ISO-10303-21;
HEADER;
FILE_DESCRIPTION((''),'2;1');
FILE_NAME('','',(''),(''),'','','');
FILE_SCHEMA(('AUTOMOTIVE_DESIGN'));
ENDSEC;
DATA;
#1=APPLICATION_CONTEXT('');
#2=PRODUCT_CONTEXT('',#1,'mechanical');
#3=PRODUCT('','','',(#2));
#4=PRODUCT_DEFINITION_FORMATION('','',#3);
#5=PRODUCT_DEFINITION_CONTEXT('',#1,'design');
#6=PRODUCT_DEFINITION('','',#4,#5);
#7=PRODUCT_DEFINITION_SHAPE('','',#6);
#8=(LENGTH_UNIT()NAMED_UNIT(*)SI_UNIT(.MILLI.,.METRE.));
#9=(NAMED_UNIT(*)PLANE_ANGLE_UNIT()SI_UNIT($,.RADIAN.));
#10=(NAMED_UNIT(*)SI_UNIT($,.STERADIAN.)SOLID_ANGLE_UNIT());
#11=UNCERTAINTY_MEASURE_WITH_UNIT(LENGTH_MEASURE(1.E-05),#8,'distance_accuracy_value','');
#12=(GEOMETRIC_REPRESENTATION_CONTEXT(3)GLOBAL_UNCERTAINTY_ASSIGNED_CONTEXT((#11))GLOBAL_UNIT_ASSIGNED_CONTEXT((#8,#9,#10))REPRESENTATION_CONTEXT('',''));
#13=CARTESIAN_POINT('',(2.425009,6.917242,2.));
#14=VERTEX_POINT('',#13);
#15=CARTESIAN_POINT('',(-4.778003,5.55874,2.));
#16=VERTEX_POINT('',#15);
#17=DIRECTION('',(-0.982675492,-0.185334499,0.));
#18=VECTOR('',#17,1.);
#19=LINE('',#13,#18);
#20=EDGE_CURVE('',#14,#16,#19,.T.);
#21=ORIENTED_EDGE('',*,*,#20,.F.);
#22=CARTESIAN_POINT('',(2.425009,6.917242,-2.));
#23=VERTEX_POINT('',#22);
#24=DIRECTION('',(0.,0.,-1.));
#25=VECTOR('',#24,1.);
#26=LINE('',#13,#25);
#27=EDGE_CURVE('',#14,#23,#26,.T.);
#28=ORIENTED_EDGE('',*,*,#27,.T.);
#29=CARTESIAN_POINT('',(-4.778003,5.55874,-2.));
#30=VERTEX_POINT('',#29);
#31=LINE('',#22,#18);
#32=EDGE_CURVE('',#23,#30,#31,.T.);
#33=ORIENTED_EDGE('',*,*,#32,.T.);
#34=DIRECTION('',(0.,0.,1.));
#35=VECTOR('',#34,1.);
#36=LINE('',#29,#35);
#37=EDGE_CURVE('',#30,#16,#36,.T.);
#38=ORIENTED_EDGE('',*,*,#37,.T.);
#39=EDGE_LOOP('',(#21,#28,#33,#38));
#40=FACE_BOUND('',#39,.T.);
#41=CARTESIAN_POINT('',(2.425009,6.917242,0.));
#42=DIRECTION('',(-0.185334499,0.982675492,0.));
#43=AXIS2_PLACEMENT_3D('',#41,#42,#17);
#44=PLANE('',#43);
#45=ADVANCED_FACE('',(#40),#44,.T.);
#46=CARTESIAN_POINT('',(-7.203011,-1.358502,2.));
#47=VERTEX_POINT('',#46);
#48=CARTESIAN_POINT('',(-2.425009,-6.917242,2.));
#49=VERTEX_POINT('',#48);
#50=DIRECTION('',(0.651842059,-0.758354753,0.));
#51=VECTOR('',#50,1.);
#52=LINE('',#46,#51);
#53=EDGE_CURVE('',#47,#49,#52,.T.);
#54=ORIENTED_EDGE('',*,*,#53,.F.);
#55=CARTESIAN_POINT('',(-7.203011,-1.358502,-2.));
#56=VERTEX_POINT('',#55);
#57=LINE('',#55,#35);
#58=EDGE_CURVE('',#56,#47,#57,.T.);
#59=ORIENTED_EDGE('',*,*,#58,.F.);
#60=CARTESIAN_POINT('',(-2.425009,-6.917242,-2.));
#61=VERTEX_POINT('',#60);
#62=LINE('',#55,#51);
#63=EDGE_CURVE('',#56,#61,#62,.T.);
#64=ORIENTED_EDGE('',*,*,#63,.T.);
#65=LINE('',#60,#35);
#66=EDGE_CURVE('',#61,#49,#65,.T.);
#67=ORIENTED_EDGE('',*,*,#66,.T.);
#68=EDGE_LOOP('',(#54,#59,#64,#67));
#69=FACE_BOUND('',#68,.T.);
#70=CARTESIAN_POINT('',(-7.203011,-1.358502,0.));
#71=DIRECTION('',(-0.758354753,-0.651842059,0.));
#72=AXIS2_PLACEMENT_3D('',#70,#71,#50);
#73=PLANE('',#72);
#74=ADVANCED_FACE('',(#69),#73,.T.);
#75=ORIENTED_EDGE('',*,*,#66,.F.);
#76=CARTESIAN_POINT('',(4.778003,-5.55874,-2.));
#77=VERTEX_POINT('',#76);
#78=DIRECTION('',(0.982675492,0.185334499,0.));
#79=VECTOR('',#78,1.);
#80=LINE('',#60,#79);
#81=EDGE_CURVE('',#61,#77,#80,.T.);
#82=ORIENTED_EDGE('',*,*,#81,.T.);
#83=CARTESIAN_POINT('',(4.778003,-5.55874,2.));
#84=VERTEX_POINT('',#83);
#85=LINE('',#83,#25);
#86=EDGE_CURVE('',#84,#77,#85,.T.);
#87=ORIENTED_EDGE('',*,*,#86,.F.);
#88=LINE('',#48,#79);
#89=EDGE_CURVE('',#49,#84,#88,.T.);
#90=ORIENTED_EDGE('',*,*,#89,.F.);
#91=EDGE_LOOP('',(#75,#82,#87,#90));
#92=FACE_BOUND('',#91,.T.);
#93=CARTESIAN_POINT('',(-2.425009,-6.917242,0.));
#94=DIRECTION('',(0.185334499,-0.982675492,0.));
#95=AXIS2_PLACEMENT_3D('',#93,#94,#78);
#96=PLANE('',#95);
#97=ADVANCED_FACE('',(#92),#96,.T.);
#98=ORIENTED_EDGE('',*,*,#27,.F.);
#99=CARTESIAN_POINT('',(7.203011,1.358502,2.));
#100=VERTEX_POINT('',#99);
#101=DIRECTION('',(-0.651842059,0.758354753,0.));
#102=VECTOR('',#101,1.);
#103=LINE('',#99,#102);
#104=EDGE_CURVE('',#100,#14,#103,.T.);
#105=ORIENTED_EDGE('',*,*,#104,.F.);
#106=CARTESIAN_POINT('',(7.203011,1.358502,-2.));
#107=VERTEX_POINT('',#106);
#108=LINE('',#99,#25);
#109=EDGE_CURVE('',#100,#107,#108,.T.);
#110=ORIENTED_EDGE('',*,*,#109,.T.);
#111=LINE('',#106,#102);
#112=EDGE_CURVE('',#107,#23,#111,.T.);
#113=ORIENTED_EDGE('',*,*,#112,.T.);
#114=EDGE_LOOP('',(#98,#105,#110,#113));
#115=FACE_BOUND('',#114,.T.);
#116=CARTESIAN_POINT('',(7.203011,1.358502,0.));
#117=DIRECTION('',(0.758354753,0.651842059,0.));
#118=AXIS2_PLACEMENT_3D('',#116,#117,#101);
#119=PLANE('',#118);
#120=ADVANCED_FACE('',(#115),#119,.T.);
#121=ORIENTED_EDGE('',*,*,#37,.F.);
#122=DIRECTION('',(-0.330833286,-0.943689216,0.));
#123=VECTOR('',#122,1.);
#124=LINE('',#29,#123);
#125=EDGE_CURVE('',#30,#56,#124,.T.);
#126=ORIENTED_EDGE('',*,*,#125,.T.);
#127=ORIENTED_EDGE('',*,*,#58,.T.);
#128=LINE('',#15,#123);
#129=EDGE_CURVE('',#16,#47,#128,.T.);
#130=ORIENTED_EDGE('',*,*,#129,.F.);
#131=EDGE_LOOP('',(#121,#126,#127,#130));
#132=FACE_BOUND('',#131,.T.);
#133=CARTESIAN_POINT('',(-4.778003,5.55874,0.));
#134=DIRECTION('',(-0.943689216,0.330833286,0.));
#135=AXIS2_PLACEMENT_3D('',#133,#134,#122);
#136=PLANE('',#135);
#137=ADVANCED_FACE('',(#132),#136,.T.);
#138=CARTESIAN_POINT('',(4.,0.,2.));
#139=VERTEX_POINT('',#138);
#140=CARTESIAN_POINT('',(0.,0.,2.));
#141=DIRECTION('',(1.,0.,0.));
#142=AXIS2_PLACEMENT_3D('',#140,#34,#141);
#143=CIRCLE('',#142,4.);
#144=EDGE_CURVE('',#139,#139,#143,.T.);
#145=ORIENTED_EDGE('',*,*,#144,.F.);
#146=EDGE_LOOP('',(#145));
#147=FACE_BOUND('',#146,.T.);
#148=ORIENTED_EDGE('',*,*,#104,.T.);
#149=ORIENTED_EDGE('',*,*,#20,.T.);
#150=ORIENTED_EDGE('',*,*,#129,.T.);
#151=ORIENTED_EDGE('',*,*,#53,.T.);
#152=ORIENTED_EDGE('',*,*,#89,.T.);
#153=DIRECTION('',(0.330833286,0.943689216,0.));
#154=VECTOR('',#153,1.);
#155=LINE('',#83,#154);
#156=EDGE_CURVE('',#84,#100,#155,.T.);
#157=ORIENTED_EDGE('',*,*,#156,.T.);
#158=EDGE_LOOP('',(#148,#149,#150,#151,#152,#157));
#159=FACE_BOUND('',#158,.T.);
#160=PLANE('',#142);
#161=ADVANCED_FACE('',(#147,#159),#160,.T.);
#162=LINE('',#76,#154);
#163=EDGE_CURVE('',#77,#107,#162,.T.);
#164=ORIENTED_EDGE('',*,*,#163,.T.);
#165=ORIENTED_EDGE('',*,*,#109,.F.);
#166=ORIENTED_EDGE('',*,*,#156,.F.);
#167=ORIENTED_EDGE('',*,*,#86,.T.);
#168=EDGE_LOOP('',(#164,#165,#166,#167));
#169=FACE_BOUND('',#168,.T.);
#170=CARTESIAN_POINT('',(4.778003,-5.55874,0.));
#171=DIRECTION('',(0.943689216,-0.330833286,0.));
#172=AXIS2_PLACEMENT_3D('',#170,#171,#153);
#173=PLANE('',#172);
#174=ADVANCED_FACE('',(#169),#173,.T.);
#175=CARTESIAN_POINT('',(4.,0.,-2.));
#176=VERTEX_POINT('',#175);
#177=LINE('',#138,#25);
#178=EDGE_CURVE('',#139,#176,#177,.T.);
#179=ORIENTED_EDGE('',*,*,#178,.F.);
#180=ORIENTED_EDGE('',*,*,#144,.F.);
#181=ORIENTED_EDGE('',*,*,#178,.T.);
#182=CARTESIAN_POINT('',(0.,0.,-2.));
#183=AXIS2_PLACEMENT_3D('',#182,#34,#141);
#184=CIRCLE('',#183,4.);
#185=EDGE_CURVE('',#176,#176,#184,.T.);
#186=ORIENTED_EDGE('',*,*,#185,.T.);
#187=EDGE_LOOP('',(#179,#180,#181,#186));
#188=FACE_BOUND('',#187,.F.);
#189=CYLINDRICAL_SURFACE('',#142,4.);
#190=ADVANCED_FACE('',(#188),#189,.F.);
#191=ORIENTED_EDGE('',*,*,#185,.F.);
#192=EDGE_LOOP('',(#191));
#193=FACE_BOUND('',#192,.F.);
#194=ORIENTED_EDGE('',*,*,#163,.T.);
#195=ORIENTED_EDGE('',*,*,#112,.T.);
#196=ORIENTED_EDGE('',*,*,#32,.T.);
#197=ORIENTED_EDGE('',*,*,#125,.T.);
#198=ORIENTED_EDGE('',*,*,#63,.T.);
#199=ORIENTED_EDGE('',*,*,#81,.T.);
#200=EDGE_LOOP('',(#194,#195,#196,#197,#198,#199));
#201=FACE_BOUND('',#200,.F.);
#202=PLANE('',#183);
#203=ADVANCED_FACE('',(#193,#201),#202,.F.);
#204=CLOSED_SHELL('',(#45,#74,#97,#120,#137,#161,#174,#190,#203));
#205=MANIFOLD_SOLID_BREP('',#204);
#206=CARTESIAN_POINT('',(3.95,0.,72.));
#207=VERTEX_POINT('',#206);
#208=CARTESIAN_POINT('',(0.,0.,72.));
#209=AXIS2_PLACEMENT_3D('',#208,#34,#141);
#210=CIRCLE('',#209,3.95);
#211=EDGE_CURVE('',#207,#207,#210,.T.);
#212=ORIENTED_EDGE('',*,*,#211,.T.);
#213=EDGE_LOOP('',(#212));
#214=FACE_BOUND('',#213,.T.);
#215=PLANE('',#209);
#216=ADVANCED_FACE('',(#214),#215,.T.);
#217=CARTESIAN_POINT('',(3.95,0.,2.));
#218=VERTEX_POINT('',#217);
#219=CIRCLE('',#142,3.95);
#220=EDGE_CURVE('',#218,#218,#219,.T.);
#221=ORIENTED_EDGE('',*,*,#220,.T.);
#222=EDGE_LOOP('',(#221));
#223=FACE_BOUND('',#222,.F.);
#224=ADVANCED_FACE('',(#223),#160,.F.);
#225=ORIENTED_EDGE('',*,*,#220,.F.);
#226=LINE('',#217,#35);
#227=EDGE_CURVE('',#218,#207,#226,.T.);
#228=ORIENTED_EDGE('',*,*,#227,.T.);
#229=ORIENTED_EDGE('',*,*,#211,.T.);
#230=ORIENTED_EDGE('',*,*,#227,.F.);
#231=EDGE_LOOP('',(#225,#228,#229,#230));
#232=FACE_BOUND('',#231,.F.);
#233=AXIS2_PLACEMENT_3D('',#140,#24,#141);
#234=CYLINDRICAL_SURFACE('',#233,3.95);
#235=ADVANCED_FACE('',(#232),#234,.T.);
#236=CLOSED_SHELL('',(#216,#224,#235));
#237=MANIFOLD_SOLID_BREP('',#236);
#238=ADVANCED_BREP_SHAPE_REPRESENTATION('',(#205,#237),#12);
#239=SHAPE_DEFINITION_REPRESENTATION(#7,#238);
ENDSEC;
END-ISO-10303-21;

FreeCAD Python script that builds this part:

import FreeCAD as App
import Part
import Sketcher


def add_polygon(sketch, points):
    """Adds a closed chain of lines whose ends are joined by coincident constraints."""
    first, n = sketch.GeometryCount, len(points)
    for a, b in zip(points, points[1:] + points[:1]):
        sketch.addGeometry(Part.LineSegment(App.Vector(*a, 0), App.Vector(*b, 0)), False)
    for i in range(n):
        sketch.addConstraint(Sketcher.Constraint("Coincident", first + i, 2, first + (i + 1) % n, 1))

doc = App.newDocument("Part")
body = doc.addObject("PartDesign::Body", "Body")

sketch1 = body.newObject("Sketcher::SketchObject", "Sketch")
sketch1.AttachmentSupport = (doc.getObject("XY_Plane"), [""])
sketch1.MapMode = "FlatFace"
add_polygon(sketch1, [(2, 7), (-5, 6), (-7, -1), (-2, -7), (5, -6), (7, 1)])
sketch1.addConstraint(Sketcher.Constraint("Symmetric", 0, 2, 3, 2, -1, 1))
sketch1.addConstraint(Sketcher.Constraint("Symmetric", 1, 2, 4, 2, -1, 1))
sketch1.addConstraint(Sketcher.Constraint("Symmetric", 2, 2, 5, 2, -1, 1))
sketch1.addConstraint(Sketcher.Constraint("Equal", 0, 1))
sketch1.addConstraint(Sketcher.Constraint("Equal", 1, 2))
sketch1.addConstraint(Sketcher.Constraint("Distance", 0, 7.330001))
sketch1.addConstraint(Sketcher.Constraint("DistanceY", 2, 2, 3, 2, 1.358502))
sketch1.addConstraint(Sketcher.Constraint("DistanceY", -1, 1, 0, 2, 5.55874))
sketch1.addConstraint(Sketcher.Constraint("DistanceX", 1, 2, -1, 1, 7.203011))
pad1 = body.newObject("PartDesign::Pad", "Pad")
pad1.Profile = sketch1
pad1.Length = 4
pad1.Midplane = True

sketch2 = body.newObject("Sketcher::SketchObject", "Sketch001")
sketch2.AttachmentSupport = (doc.getObject("XY_Plane"), [""])
sketch2.MapMode = "FlatFace"
sketch2.AttachmentOffset = App.Placement(App.Vector(0, 0, 2), App.Rotation())
sketch2.addGeometry(Part.Circle(App.Vector(0, 0, 0), App.Vector(0, 0, 1), 4), False)
sketch2.addConstraint(Sketcher.Constraint("Coincident", 0, 3, -1, 1))
sketch2.addConstraint(Sketcher.Constraint("Diameter", 0, 8.0))
pocket1 = body.newObject("PartDesign::Pocket", "Pocket")
pocket1.Profile = sketch2
pocket1.Length = 25
body2 = doc.addObject("PartDesign::Body", "Body001")

sketch3 = body2.newObject("Sketcher::SketchObject", "Sketch002")
sketch3.AttachmentSupport = (doc.getObject("XY_Plane001"), [""])
sketch3.MapMode = "FlatFace"
sketch3.AttachmentOffset = App.Placement(App.Vector(0, 0, 2), App.Rotation())
sketch3.addGeometry(Part.Circle(App.Vector(0, 0, 0), App.Vector(0, 0, 1), 4), False)
sketch3.addConstraint(Sketcher.Constraint("Coincident", 0, 3, -1, 1))
sketch3.addConstraint(Sketcher.Constraint("Diameter", 0, 7.9))
pad2 = body2.newObject("PartDesign::Pad", "Pad001")
pad2.Profile = sketch3
pad2.Length = 70

doc.recompute()
